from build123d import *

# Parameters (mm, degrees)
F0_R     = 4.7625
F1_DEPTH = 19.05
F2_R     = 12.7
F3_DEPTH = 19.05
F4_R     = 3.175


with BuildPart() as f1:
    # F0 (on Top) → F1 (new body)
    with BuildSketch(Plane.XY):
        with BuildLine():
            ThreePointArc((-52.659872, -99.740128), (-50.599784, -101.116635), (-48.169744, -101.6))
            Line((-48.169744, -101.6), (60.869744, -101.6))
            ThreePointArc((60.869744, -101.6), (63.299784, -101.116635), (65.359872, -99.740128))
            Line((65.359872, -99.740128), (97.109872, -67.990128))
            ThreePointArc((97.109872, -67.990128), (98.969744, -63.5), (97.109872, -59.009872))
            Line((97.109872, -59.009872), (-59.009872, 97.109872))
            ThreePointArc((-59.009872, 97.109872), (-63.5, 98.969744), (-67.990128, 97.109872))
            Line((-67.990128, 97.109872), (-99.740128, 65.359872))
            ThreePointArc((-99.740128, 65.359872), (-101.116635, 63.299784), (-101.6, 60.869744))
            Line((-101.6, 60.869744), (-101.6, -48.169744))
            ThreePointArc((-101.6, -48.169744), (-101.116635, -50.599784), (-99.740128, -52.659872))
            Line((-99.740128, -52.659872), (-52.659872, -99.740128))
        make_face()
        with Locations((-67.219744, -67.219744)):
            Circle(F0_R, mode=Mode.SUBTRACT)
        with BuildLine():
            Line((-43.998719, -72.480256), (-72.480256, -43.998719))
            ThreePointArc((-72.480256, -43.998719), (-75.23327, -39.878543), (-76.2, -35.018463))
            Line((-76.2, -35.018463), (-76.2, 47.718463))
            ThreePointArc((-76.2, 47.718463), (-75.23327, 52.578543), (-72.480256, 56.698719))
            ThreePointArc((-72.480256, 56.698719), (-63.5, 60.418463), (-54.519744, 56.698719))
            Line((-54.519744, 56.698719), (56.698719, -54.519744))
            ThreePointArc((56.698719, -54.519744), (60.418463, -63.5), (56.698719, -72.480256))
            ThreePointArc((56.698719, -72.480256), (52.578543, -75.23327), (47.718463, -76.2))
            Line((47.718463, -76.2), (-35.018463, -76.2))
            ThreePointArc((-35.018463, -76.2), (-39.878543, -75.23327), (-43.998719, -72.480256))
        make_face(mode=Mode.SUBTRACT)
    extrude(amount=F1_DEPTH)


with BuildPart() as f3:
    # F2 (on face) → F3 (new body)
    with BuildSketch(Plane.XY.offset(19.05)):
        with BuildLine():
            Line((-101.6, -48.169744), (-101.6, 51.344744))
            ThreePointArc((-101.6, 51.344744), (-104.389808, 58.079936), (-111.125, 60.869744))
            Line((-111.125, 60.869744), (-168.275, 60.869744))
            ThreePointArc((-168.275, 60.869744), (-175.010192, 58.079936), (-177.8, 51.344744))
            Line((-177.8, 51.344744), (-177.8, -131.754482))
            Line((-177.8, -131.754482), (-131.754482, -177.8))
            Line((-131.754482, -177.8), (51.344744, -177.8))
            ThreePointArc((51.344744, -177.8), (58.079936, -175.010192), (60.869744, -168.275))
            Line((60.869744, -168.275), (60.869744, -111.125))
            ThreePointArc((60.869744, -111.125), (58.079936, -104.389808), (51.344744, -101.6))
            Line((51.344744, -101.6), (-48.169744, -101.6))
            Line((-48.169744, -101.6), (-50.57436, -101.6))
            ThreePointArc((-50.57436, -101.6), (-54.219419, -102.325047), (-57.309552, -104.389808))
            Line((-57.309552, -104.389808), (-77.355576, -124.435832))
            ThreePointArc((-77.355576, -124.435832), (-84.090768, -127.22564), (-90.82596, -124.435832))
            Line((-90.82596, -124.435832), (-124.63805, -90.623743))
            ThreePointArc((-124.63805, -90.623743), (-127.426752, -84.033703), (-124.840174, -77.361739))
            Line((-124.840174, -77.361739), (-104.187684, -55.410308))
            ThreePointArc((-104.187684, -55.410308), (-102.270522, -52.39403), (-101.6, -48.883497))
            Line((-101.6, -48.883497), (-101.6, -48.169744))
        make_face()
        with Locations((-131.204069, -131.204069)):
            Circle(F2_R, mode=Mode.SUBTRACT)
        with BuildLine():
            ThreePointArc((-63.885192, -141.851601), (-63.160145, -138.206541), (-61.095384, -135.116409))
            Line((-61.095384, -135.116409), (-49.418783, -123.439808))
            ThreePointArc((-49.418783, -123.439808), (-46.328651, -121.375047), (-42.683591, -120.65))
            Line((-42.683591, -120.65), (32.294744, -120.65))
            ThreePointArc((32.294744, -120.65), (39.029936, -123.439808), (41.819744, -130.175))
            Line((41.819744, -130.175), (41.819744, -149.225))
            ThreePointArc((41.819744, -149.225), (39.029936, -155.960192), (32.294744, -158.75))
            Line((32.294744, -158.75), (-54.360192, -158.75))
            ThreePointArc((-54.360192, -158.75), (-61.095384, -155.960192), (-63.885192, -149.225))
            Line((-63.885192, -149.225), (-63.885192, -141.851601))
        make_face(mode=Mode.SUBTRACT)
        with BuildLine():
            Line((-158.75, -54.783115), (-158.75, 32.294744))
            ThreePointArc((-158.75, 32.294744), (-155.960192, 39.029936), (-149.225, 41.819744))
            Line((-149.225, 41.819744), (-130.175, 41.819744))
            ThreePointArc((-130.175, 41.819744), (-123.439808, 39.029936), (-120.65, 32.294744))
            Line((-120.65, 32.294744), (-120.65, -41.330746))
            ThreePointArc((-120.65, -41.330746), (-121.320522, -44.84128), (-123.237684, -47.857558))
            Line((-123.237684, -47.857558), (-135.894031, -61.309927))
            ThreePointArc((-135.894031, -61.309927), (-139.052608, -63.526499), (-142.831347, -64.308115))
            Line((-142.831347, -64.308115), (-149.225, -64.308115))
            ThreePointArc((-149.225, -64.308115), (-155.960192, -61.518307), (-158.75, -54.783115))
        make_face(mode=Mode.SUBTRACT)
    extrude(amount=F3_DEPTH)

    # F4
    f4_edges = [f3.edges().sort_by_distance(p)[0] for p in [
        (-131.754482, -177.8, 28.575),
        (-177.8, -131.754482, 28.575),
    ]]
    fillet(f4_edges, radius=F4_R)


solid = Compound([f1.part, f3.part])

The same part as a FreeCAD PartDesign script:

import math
import FreeCAD as App
import Part
import Sketcher
Q = App.Units.Quantity


def edges_at(feature, points):
    """Names of the edges that pass closest to the given points."""
    edges = feature.Shape.Edges
    near = lambda p: min(range(len(edges)), key=lambda i: edges[i].distToShape(Part.Vertex(*p))[0])
    return sorted({f"Edge{near(p) + 1}" for p in points})

doc = App.newDocument("Part")
body = doc.addObject("PartDesign::Body", "Body")

sketch1 = doc.addObject("Sketcher::SketchObject", "Sketch")
body.addObject(sketch1)
sketch1.AttachmentSupport = (doc.XY_Plane, [""])
sketch1.MapMode = "FlatFace"
sketch1.addGeometry([
    Part.ArcOfCircle(Part.Circle(App.Vector(-48.2, -95.3, 0), App.Vector(0, 0, 1), 6.3), math.radians(-135), math.radians(-90)),
    Part.LineSegment(App.Vector(-48.2, -101.6, 0), App.Vector(60.9, -101.6, 0)),
    Part.ArcOfCircle(Part.Circle(App.Vector(60.9, -95.3, 0), App.Vector(0, 0, 1), 6.3), math.radians(-90), math.radians(-45)),
    Part.LineSegment(App.Vector(65.4, -99.7, 0), App.Vector(97.1, -68, 0)),
    Part.ArcOfCircle(Part.Circle(App.Vector(92.6, -63.5, 0), App.Vector(0, 0, 1), 6.3), math.radians(-45), math.radians(45)),
    Part.LineSegment(App.Vector(97.1, -59, 0), App.Vector(-59, 97.1, 0)),
    Part.ArcOfCircle(Part.Circle(App.Vector(-63.5, 92.6, 0), App.Vector(0, 0, 1), 6.3), math.radians(45), math.radians(135)),
    Part.LineSegment(App.Vector(-68, 97.1, 0), App.Vector(-99.7, 65.4, 0)),
    Part.ArcOfCircle(Part.Circle(App.Vector(-95.3, 60.9, 0), App.Vector(0, 0, 1), 6.3), math.radians(135), math.radians(180)),
    Part.LineSegment(App.Vector(-101.6, 60.9, 0), App.Vector(-101.6, -48.2, 0)),
    Part.ArcOfCircle(Part.Circle(App.Vector(-95.3, -48.2, 0), App.Vector(0, 0, 1), 6.3), math.radians(180), math.radians(225)),
    Part.LineSegment(App.Vector(-99.7, -52.7, 0), App.Vector(-52.7, -99.7, 0)),
    Part.Circle(App.Vector(-67.2, -67.2, 0), App.Vector(0, 0, 1), 4.8),
    Part.ArcOfCircle(Part.Circle(App.Vector(-35, -63.5, 0), App.Vector(0, 0, 1), 12.7), math.radians(-135), math.radians(-90)),
    Part.LineSegment(App.Vector(-44, -72.5, 0), App.Vector(-72.5, -44, 0)),
    Part.ArcOfCircle(Part.Circle(App.Vector(-63.5, -35, 0), App.Vector(0, 0, 1), 12.7), math.radians(180), math.radians(225)),
    Part.LineSegment(App.Vector(-76.2, -35, 0), App.Vector(-76.2, 47.7, 0)),
    Part.ArcOfCircle(Part.Circle(App.Vector(-63.5, 47.7, 0), App.Vector(0, 0, 1), 12.7), math.radians(135), math.radians(180)),
    Part.ArcOfCircle(Part.Circle(App.Vector(-63.5, 47.7, 0), App.Vector(0, 0, 1), 12.7), math.radians(45), math.radians(135)),
    Part.LineSegment(App.Vector(-54.5, 56.7, 0), App.Vector(56.7, -54.5, 0)),
    Part.ArcOfCircle(Part.Circle(App.Vector(47.7, -63.5, 0), App.Vector(0, 0, 1), 12.7), math.radians(-45), math.radians(45)),
    Part.ArcOfCircle(Part.Circle(App.Vector(47.7, -63.5, 0), App.Vector(0, 0, 1), 12.7), math.radians(-90), math.radians(-45)),
    Part.LineSegment(App.Vector(47.7, -76.2, 0), App.Vector(-35, -76.2, 0)),
], False)
sketch1.addConstraint([
    Sketcher.Constraint("Tangent", 0, 2, 1, 1),
    Sketcher.Constraint("Tangent", 1, 2, 2, 1),
    Sketcher.Constraint("Tangent", 2, 2, 3, 1),
    Sketcher.Constraint("Tangent", 3, 2, 4, 1),
    Sketcher.Constraint("Tangent", 4, 2, 5, 1),
    Sketcher.Constraint("Tangent", 5, 2, 6, 1),
    Sketcher.Constraint("Tangent", 6, 2, 7, 1),
    Sketcher.Constraint("Tangent", 7, 2, 8, 1),
    Sketcher.Constraint("Tangent", 8, 2, 9, 1),
    Sketcher.Constraint("Tangent", 9, 2, 10, 1),
    Sketcher.Constraint("Tangent", 10, 2, 11, 1),
    Sketcher.Constraint("Tangent", 11, 2, 0, 1),
    Sketcher.Constraint("Tangent", 13, 1, 14, 1),
    Sketcher.Constraint("Tangent", 14, 2, 15, 2),
    Sketcher.Constraint("Tangent", 15, 1, 16, 1),
    Sketcher.Constraint("Tangent", 16, 2, 17, 2),
    Sketcher.Constraint("Tangent", 17, 1, 18, 2),
    Sketcher.Constraint("Tangent", 18, 1, 19, 1),
    Sketcher.Constraint("Tangent", 19, 2, 20, 2),
    Sketcher.Constraint("Tangent", 20, 1, 21, 2),
    Sketcher.Constraint("Tangent", 21, 1, 22, 1),
    Sketcher.Constraint("Tangent", 22, 2, 13, 2),
    Sketcher.Constraint("Horizontal", 1),
    Sketcher.Constraint("Vertical", 9),
    Sketcher.Constraint("Vertical", 16),
    Sketcher.Constraint("Horizontal", 22),
    Sketcher.Constraint("Equal", 0, 2),
    Sketcher.Constraint("Equal", 2, 4),
    Sketcher.Constraint("Equal", 4, 6),
    Sketcher.Constraint("Equal", 6, 8),
    Sketcher.Constraint("Equal", 8, 10),
    Sketcher.Constraint("Equal", 13, 15),
    Sketcher.Constraint("Equal", 15, 17),
    Sketcher.Constraint("Equal", 17, 18),
    Sketcher.Constraint("Equal", 18, 20),
    Sketcher.Constraint("Equal", 20, 21),
    Sketcher.Constraint("Perpendicular", 3, 5),
    Sketcher.Constraint("Perpendicular", 5, 7),
    Sketcher.Constraint("Perpendicular", 7, 11),
    Sketcher.Constraint("Parallel", 11, 14),
    Sketcher.Constraint("Parallel", 14, 19),
    Sketcher.Constraint("Horizontal", 4, 3, 20, 3),
    Sketcher.Constraint("Horizontal", 5, 2, 6, 2),
    Sketcher.Constraint("Horizontal", 17, 1, 18, 1),
    Sketcher.Constraint("Horizontal", 13, 1, 20, 1),
    Sketcher.Constraint("Vertical", 6, 3, 18, 3),
    Sketcher.Constraint("Equal", 1, 9),
    Sketcher.Constraint("Radius", 13, Q("0.4999999 in")),
    Sketcher.Constraint("Radius", 0, Q("0.25 in")),
    Sketcher.Constraint("Diameter", 12, Q("0.375 in")),
    Sketcher.Constraint("DistanceY", 0, 2, -1, 1, Q("4 in")),
    Sketcher.Constraint("DistanceX", 8, 2, -1, 1, Q("4 in")),
    Sketcher.Constraint("DistanceX", 15, 1, -1, 1, Q("3 in")),
    Sketcher.Constraint("DistanceX", 12, 3, 0, 3, Q("0.75 in")),
    Sketcher.Constraint("DistanceY", 12, 3, 10, 3, Q("0.75 in")),
    Sketcher.Constraint("DistanceX", 1, 1, 1, 2, 109.039488),
    Sketcher.Constraint("Distance", 5, 220.786659),
    Sketcher.Constraint("Distance", 19, 157.286659),
    Sketcher.Constraint("DistanceX", 22, 2, 22, 1, 82.736926),
])
pad1 = doc.addObject("PartDesign::Pad", "Pad")
body.addObject(pad1)
pad1.Profile = sketch1
pad1.Length = Q("0.75 in")
body2 = doc.addObject("PartDesign::Body", "Body001")

sketch2 = doc.addObject("Sketcher::SketchObject", "Sketch001")
body2.addObject(sketch2)
sketch2.AttachmentSupport = (doc.getObject("XY_Plane001"), [""])
sketch2.MapMode = "FlatFace"
sketch2.AttachmentOffset = App.Placement(App.Vector(0, 0, 0.75 * 25.4), App.Rotation())
sketch2.addGeometry([
    Part.ArcOfCircle(Part.Circle(App.Vector(-111, 51, 0), App.Vector(0, 0, 1), 10), math.radians(0), math.radians(90)),
    Part.LineSegment(App.Vector(-111, 61, 0), App.Vector(-168, 61, 0)),
    Part.ArcOfCircle(Part.Circle(App.Vector(-168, 51, 0), App.Vector(0, 0, 1), 10), math.radians(90), math.radians(180)),
    Part.LineSegment(App.Vector(-178, 51, 0), App.Vector(-178, -132, 0)),
    Part.LineSegment(App.Vector(-178, -132, 0), App.Vector(-132, -178, 0)),
    Part.LineSegment(App.Vector(-132, -178, 0), App.Vector(51, -178, 0)),
    Part.ArcOfCircle(Part.Circle(App.Vector(51, -168, 0), App.Vector(0, 0, 1), 10), math.radians(-90), math.radians(0)),
    Part.LineSegment(App.Vector(61, -168, 0), App.Vector(61, -111, 0)),
    Part.ArcOfCircle(Part.Circle(App.Vector(51, -111, 0), App.Vector(0, 0, 1), 10), math.radians(0), math.radians(90)),
    Part.LineSegment(App.Vector(51, -102, 0), App.Vector(-51, -102, 0)),
    Part.ArcOfCircle(Part.Circle(App.Vector(-51, -111, 0), App.Vector(0, 0, 1), 10), math.radians(90), math.radians(135)),
    Part.LineSegment(App.Vector(-57, -104, 0), App.Vector(-77, -124, 0)),
    Part.ArcOfCircle(Part.Circle(App.Vector(-84, -118, 0), App.Vector(0, 0, 1), 10), math.radians(-135), math.radians(-45)),
    Part.LineSegment(App.Vector(-91, -124, 0), App.Vector(-125, -91, 0)),
    Part.ArcOfCircle(Part.Circle(App.Vector(-118, -84, 0), App.Vector(0, 0, 1), 10), math.radians(137), math.radians(225)),
    Part.LineSegment(App.Vector(-125, -77, 0), App.Vector(-104, -55, 0)),
    Part.ArcOfCircle(Part.Circle(App.Vector(-111, -49, 0), App.Vector(0, 0, 1), 10), math.radians(-43), math.radians(0)),
    Part.LineSegment(App.Vector(-102, -49, 0), App.Vector(-102, 51, 0)),
    Part.Circle(App.Vector(-131, -131, 0), App.Vector(0, 0, 1), 13),
    Part.LineSegment(App.Vector(-64, -149, 0), App.Vector(-64, -142, 0)),
    Part.ArcOfCircle(Part.Circle(App.Vector(-54, -142, 0), App.Vector(0, 0, 1), 10), math.radians(135), math.radians(180)),
    Part.LineSegment(App.Vector(-61, -135, 0), App.Vector(-49, -123, 0)),
    Part.ArcOfCircle(Part.Circle(App.Vector(-43, -130, 0), App.Vector(0, 0, 1), 10), math.radians(90), math.radians(135)),
    Part.LineSegment(App.Vector(-43, -121, 0), App.Vector(32, -121, 0)),
    Part.ArcOfCircle(Part.Circle(App.Vector(32, -130, 0), App.Vector(0, 0, 1), 10), math.radians(0), math.radians(90)),
    Part.LineSegment(App.Vector(42, -130, 0), App.Vector(42, -149, 0)),
    Part.ArcOfCircle(Part.Circle(App.Vector(32, -149, 0), App.Vector(0, 0, 1), 10), math.radians(-90), math.radians(0)),
    Part.LineSegment(App.Vector(32, -159, 0), App.Vector(-54, -159, 0)),
    Part.ArcOfCircle(Part.Circle(App.Vector(-54, -149, 0), App.Vector(0, 0, 1), 10), math.radians(-180), math.radians(-90)),
    Part.ArcOfCircle(Part.Circle(App.Vector(-149, -55, 0), App.Vector(0, 0, 1), 10), math.radians(-180), math.radians(-90)),
    Part.LineSegment(App.Vector(-159, -55, 0), App.Vector(-159, 32, 0)),
    Part.ArcOfCircle(Part.Circle(App.Vector(-149, 32, 0), App.Vector(0, 0, 1), 10), math.radians(90), math.radians(180)),
    Part.LineSegment(App.Vector(-149, 42, 0), App.Vector(-130, 42, 0)),
    Part.ArcOfCircle(Part.Circle(App.Vector(-130, 32, 0), App.Vector(0, 0, 1), 10), math.radians(0), math.radians(90)),
    Part.LineSegment(App.Vector(-121, 32, 0), App.Vector(-121, -41, 0)),
    Part.ArcOfCircle(Part.Circle(App.Vector(-130, -41, 0), App.Vector(0, 0, 1), 10), math.radians(-43), math.radians(0)),
    Part.LineSegment(App.Vector(-123, -48, 0), App.Vector(-136, -61, 0)),
    Part.ArcOfCircle(Part.Circle(App.Vector(-143, -55, 0), App.Vector(0, 0, 1), 10), math.radians(-90), math.radians(-43)),
    Part.LineSegment(App.Vector(-143, -64, 0), App.Vector(-149, -64, 0)),
], False)
sketch2.addConstraint([
    Sketcher.Constraint("Tangent", 0, 2, 1, 1),
    Sketcher.Constraint("Tangent", 1, 2, 2, 1),
    Sketcher.Constraint("Tangent", 2, 2, 3, 1),
    Sketcher.Constraint("Coincident", 3, 2, 4, 1),
    Sketcher.Constraint("Coincident", 4, 2, 5, 1),
    Sketcher.Constraint("Tangent", 5, 2, 6, 1),
    Sketcher.Constraint("Tangent", 6, 2, 7, 1),
    Sketcher.Constraint("Tangent", 7, 2, 8, 1),
    Sketcher.Constraint("Tangent", 8, 2, 9, 1),
    Sketcher.Constraint("Tangent", 9, 2, 10, 1),
    Sketcher.Constraint("Tangent", 10, 2, 11, 1),
    Sketcher.Constraint("Tangent", 11, 2, 12, 2),
    Sketcher.Constraint("Tangent", 12, 1, 13, 1),
    Sketcher.Constraint("Tangent", 13, 2, 14, 2),
    Sketcher.Constraint("Tangent", 14, 1, 15, 1),
    Sketcher.Constraint("Tangent", 15, 2, 16, 1),
    Sketcher.Constraint("Tangent", 16, 2, 17, 1),
    Sketcher.Constraint("Tangent", 17, 2, 0, 1),
    Sketcher.Constraint("Tangent", 19, 2, 20, 2),
    Sketcher.Constraint("Tangent", 20, 1, 21, 1),
    Sketcher.Constraint("Tangent", 21, 2, 22, 2),
    Sketcher.Constraint("Tangent", 22, 1, 23, 1),
    Sketcher.Constraint("Tangent", 23, 2, 24, 2),
    Sketcher.Constraint("Tangent", 24, 1, 25, 1),
    Sketcher.Constraint("Tangent", 25, 2, 26, 2),
    Sketcher.Constraint("Tangent", 26, 1, 27, 1),
    Sketcher.Constraint("Tangent", 27, 2, 28, 2),
    Sketcher.Constraint("Tangent", 28, 1, 19, 1),
    Sketcher.Constraint("Tangent", 29, 1, 30, 1),
    Sketcher.Constraint("Tangent", 30, 2, 31, 2),
    Sketcher.Constraint("Tangent", 31, 1, 32, 1),
    Sketcher.Constraint("Tangent", 32, 2, 33, 2),
    Sketcher.Constraint("Tangent", 33, 1, 34, 1),
    Sketcher.Constraint("Tangent", 34, 2, 35, 2),
    Sketcher.Constraint("Tangent", 35, 1, 36, 1),
    Sketcher.Constraint("Tangent", 36, 2, 37, 2),
    Sketcher.Constraint("Tangent", 37, 1, 38, 1),
    Sketcher.Constraint("Tangent", 38, 2, 29, 2),
    Sketcher.Constraint("Horizontal", 1),
    Sketcher.Constraint("Vertical", 3),
    Sketcher.Constraint("Horizontal", 5),
    Sketcher.Constraint("Vertical", 7),
    Sketcher.Constraint("Horizontal", 9),
    Sketcher.Constraint("Vertical", 17),
    Sketcher.Constraint("Vertical", 19),
    Sketcher.Constraint("Horizontal", 23),
    Sketcher.Constraint("Vertical", 25),
    Sketcher.Constraint("Horizontal", 27),
    Sketcher.Constraint("Vertical", 30),
    Sketcher.Constraint("Horizontal", 32),
    Sketcher.Constraint("Vertical", 34),
    Sketcher.Constraint("Horizontal", 38),
    Sketcher.Constraint("Equal", 0, 2),
    Sketcher.Constraint("Equal", 2, 6),
    Sketcher.Constraint("Equal", 6, 8),
    Sketcher.Constraint("Equal", 8, 12),
    Sketcher.Constraint("Equal", 12, 14),
    Sketcher.Constraint("Equal", 14, 16),
    Sketcher.Constraint("Equal", 20, 22),
    Sketcher.Constraint("Equal", 14, 24),
    Sketcher.Constraint("Equal", 24, 26),
    Sketcher.Constraint("Equal", 26, 28),
    Sketcher.Constraint("Equal", 28, 29),
    Sketcher.Constraint("Equal", 29, 31),
    Sketcher.Constraint("Equal", 31, 33),
    Sketcher.Constraint("Equal", 16, 35),
    Sketcher.Constraint("Equal", 35, 37),
    Sketcher.Constraint("Perpendicular", 4, 11),
    Sketcher.Constraint("Perpendicular", 11, 13),
    Sketcher.Constraint("Perpendicular", 13, 21),
    Sketcher.Constraint("Parallel", 15, 36),
    Sketcher.Constraint("Horizontal", 11, 2, 12, 1),
    Sketcher.Constraint("Equal", 5, 3),
    Sketcher.Constraint("Equal", 1, 7),
    Sketcher.Constraint("Equal", 32, 25),
    Sketcher.Constraint("Diameter", 18, Q("1 in")),
    Sketcher.Constraint("DistanceX", 2, 2, -1, 1, Q("7 in")),
    Sketcher.Constraint("DistanceY", 4, 2, -1, 1, Q("7 in")),
    Sketcher.Constraint("DistanceY", 8, 2, -1, 1, Q("4 in")),
    Sketcher.Constraint("Radius", 0, Q("0.375 in")),
    Sketcher.Constraint("Radius", 10, Q("0.3749999 in")),
    Sketcher.Constraint("DistanceX", 32, 1, 32, 2, Q("0.75 in")),
    Sketcher.Constraint("DistanceY", 6, 3, 24, 3, Q("1.5 in")),
    Sketcher.Constraint("DistanceX", 29, 3, 16, 3, Q("1.5000001 in")),
    Sketcher.Constraint("DistanceY", 22, 3, 10, 3, Q("0.7499998 in")),
    Sketcher.Constraint("DistanceX", 24, 3, 8, 3, Q("0.75 in")),
    Sketcher.Constraint("DistanceY", 31, 3, 2, 3, Q("0.75 in")),
    Sketcher.Constraint("DistanceY", 19, 1, 19, 2, 7.373399),
    Sketcher.Constraint("DistanceY", 17, 1, 17, 2, 100.228241),
    Sketcher.Constraint("DistanceY", 30, 1, 30, 2, 87.077859),
    Sketcher.Constraint("DistanceY", 34, 2, 34, 1, 73.62549),
    Sketcher.Constraint("DistanceX", 20, 3, -1, 1, 54.360199),
    Sketcher.Constraint("DistanceX", 14, 3, 8, 3, 169.247602),
    Sketcher.Constraint("DistanceY", 10, 3, 16, 3, 62.2415),
    Sketcher.Constraint("DistanceX", 18, 3, 12, 3, 47.113301),
    Sketcher.Constraint("Distance", 11, 28.349359),
    Sketcher.Constraint("Distance", 15, 30.13952),
    Sketcher.Constraint("DistanceX", 5, 1, 5, 2, 183.099226),
    Sketcher.Constraint("DistanceY", 18, 3, -1, 1, 131.204069),
])
pad2 = doc.addObject("PartDesign::Pad", "Pad001")
body2.addObject(pad2)
pad2.Profile = sketch2
pad2.Length = Q("0.75 in")
doc.recompute()

fillet = doc.addObject("PartDesign::Fillet", "Fillet")
body2.addObject(fillet)
fillet.Base = (pad2, edges_at(pad2, [(-131.754, -177.8, 28.575), (-177.8, -131.754, 28.575)]))
fillet.Radius = Q("0.125 in")

doc.recompute()
